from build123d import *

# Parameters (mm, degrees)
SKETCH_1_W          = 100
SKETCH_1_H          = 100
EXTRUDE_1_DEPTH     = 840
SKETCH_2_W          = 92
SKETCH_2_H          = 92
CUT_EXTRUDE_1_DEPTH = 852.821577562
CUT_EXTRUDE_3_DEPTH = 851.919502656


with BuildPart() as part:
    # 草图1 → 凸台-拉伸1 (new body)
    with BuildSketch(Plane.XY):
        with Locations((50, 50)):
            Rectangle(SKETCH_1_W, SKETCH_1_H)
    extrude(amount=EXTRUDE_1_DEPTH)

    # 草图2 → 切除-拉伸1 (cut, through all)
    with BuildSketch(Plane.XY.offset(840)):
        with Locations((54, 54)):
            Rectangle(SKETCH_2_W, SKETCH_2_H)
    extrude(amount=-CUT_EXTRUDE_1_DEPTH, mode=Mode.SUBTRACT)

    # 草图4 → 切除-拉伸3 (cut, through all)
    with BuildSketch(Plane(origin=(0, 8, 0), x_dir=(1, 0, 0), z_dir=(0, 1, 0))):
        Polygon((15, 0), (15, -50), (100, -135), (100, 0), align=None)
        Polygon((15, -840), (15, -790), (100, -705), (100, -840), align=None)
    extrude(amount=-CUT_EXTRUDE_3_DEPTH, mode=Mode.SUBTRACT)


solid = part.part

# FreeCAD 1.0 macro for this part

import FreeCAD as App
import Part
import Sketcher

V = App.Vector


def add_polygon(sketch, points):
    """Adds a closed chain of lines whose ends are joined by coincident constraints."""
    first, n = sketch.GeometryCount, len(points)
    for a, b in zip(points, points[1:] + points[:1]):
        sketch.addGeometry(Part.LineSegment(App.Vector(*a, 0), App.Vector(*b, 0)), False)
    for i in range(n):
        sketch.addConstraint(Sketcher.Constraint("Coincident", first + i, 2, first + (i + 1) % n, 1))

doc = App.newDocument("Part")
body = doc.addObject("PartDesign::Body", "Body")

# Sketch on XY plane
sketch1 = body.newObject("Sketcher::SketchObject", "Sketch")
sketch1.AttachmentSupport = (doc.getObject("XY_Plane"), [""])
sketch1.MapMode = "FlatFace"
add_polygon(sketch1, [(0, 100), (0, 0), (100, 0), (100, 100)])  # lines 0-3
sketch1.addConstraint(Sketcher.Constraint("Vertical", 0))
sketch1.addConstraint(Sketcher.Constraint("Horizontal", 1))
sketch1.addConstraint(Sketcher.Constraint("Vertical", 2))
sketch1.addConstraint(Sketcher.Constraint("Horizontal", 3))
sketch1.addConstraint(Sketcher.Constraint("Coincident", 0, 2, -1, 1))
sketch1.addConstraint(Sketcher.Constraint("Equal", 3, 0))
sketch1.addConstraint(Sketcher.Constraint("DistanceX", 1, 1, 1, 2, 100.0))
pad1 = body.newObject("PartDesign::Pad", "Pad")
pad1.Profile = sketch1
pad1.Length = 840

# Sketch on XY plane
sketch2 = body.newObject("Sketcher::SketchObject", "Sketch001")
sketch2.AttachmentSupport = (doc.getObject("XY_Plane"), [""])
sketch2.MapMode = "FlatFace"
sketch2.AttachmentOffset = App.Placement(V(0, 0, 840), App.Rotation())
add_polygon(sketch2, [(8, 100), (8, 8), (100, 8), (100, 100)])  # lines 0-3
sketch2.addConstraint(Sketcher.Constraint("Vertical", 0))
sketch2.addConstraint(Sketcher.Constraint("Horizontal", 1))
sketch2.addConstraint(Sketcher.Constraint("Vertical", 2))
sketch2.addConstraint(Sketcher.Constraint("Horizontal", 3))
sketch2.addConstraint(Sketcher.Constraint("Equal", 3, 0))
sketch2.addConstraint(Sketcher.Constraint("DistanceX", 1, 1, 1, 2, 92.0))
sketch2.addConstraint(Sketcher.Constraint("DistanceX", -1, 1, 0, 2, 8.0))
sketch2.addConstraint(Sketcher.Constraint("DistanceY", -1, 1, 0, 2, 8.0))
pocket1 = body.newObject("PartDesign::Pocket", "Pocket")
pocket1.Profile = sketch2
pocket1.Type = "ThroughAll"

# Sketch on XZ plane
sketch3 = body.newObject("Sketcher::SketchObject", "Sketch002")
sketch3.AttachmentSupport = (doc.getObject("XZ_Plane"), [""])
sketch3.MapMode = "FlatFace"
sketch3.AttachmentOffset = App.Placement(V(0, 0, -8), App.Rotation())
add_polygon(sketch3, [(15, 0), (15, 50), (100, 135), (100, 0)])  # lines 0-3
add_polygon(sketch3, [(15, 790), (15, 840), (100, 840), (100, 705)])  # lines 4-7
sketch3.addConstraint(Sketcher.Constraint("Vertical", 0))
sketch3.addConstraint(Sketcher.Constraint("Vertical", 2))
sketch3.addConstraint(Sketcher.Constraint("Horizontal", 3))
sketch3.addConstraint(Sketcher.Constraint("Vertical", 4))
sketch3.addConstraint(Sketcher.Constraint("Horizontal", 5))
sketch3.addConstraint(Sketcher.Constraint("Vertical", 6))
sketch3.addConstraint(Sketcher.Constraint("PointOnObject", 2, 2, -1))
sketch3.addConstraint(Sketcher.Constraint("Perpendicular", 1, 7))
sketch3.addConstraint(Sketcher.Constraint("Vertical", 3, 2, 4, 2))
sketch3.addConstraint(Sketcher.Constraint("Vertical", 2, 2, 5, 2))
sketch3.addConstraint(Sketcher.Constraint("Equal", 0, 4))
sketch3.addConstraint(Sketcher.Constraint("Equal", 2, 6))
sketch3.addConstraint(Sketcher.Constraint("DistanceX", 3, 2, 3, 1, 85.0))
sketch3.addConstraint(Sketcher.Constraint("DistanceY", 0, 1, 0, 2, 50.0))
sketch3.addConstraint(Sketcher.Constraint("DistanceX", -1, 1, 0, 2, 15.0))
sketch3.addConstraint(Sketcher.Constraint("DistanceY", -1, 1, 4, 2, 840.0))
pocket2 = body.newObject("PartDesign::Pocket", "Pocket001")
pocket2.Profile = sketch3
pocket2.Type = "ThroughAll"
pocket2.Reversed = True

doc.recompute()
